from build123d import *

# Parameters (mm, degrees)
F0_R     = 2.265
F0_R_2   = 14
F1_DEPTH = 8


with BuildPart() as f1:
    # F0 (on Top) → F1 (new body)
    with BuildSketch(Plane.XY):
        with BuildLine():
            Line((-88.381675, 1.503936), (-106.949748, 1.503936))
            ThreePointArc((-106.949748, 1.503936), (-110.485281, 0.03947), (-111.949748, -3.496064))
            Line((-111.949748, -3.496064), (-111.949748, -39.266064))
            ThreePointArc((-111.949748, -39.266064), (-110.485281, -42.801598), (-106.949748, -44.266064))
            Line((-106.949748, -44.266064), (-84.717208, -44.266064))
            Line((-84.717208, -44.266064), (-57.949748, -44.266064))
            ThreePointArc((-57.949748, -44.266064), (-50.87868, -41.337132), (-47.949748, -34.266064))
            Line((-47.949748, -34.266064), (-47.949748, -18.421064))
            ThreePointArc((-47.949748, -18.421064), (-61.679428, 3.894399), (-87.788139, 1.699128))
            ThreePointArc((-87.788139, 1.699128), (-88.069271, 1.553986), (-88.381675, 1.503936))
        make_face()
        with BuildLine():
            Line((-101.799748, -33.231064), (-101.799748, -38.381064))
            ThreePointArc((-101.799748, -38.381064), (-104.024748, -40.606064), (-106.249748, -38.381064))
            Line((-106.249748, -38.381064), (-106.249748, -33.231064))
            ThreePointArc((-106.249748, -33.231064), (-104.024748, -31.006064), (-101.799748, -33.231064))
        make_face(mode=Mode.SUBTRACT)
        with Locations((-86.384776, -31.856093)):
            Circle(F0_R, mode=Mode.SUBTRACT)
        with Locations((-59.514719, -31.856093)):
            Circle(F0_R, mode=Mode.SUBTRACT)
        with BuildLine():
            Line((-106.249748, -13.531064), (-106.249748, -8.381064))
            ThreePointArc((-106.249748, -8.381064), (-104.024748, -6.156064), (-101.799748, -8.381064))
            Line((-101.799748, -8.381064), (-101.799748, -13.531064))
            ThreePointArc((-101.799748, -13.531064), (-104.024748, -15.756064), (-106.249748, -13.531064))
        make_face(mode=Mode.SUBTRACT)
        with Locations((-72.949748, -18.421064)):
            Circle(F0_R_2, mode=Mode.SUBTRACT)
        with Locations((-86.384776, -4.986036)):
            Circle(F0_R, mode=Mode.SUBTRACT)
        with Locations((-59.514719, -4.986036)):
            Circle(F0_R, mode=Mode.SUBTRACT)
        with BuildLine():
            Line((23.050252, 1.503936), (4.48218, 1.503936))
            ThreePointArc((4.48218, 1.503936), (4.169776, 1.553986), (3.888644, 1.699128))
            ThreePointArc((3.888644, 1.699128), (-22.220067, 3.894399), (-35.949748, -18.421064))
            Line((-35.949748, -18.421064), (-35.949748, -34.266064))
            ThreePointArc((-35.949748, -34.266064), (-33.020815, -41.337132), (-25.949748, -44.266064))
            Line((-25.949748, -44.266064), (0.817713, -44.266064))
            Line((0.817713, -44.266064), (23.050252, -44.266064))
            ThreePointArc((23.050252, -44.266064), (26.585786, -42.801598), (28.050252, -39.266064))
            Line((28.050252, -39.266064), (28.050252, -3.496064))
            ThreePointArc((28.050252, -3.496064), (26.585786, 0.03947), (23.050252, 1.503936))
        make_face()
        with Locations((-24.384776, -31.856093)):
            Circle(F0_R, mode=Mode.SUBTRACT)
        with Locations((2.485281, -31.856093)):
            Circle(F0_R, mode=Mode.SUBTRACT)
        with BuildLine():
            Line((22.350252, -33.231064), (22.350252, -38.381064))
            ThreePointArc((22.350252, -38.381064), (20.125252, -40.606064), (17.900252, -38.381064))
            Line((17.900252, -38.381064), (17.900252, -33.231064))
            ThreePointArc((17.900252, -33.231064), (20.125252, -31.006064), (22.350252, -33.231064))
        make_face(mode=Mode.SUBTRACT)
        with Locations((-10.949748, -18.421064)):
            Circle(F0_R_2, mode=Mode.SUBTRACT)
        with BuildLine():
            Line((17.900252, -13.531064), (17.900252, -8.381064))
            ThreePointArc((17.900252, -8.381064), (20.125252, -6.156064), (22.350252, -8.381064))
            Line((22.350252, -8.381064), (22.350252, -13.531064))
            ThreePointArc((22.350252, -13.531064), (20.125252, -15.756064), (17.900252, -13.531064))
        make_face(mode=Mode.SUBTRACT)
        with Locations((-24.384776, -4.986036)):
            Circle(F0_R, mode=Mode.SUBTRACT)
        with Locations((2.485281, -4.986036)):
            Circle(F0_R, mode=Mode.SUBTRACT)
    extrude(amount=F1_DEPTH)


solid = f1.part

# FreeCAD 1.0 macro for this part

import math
import FreeCAD as App
import Part
import Sketcher
Q = App.Units.Quantity

doc = App.newDocument("Part")
body = doc.addObject("PartDesign::Body", "Body")
body.AllowCompound = True

# Sketch on XY plane
sketch1 = body.newObject("Sketcher::SketchObject", "Sketch")
sketch1.AttachmentSupport = (doc.getObject("XY_Plane"), [""])
sketch1.MapMode = "FlatFace"
sketch1.addGeometry([
    Part.LineSegment(App.Vector(-88.381675, 1.503936, 0), App.Vector(-106.949748, 1.503936, 0)),  # 0
    Part.ArcOfCircle(Part.Circle(App.Vector(-106.949747, -3.496065, 0), App.Vector(0, 0, 1), 5.000001), math.radians(90.000016), math.radians(179.999984)),  # 1
    Part.LineSegment(App.Vector(-111.949748, -3.496064, 0), App.Vector(-111.949748, -39.266064, 0)),  # 2
    Part.ArcOfCircle(Part.Circle(App.Vector(-106.949747, -39.266063, 0), App.Vector(0, 0, 1), 5.000001), math.radians(-179.999984), math.radians(-90.000016)),  # 3
    Part.LineSegment(App.Vector(-106.949748, -44.266064, 0), App.Vector(-57.949748, -44.266064, 0)),  # 4
    Part.ArcOfCircle(Part.Circle(App.Vector(-57.949747, -34.266065, 0), App.Vector(0, 0, 1), 9.999999), math.radians(-90.000004), math.radians(0.000004)),  # 5
    Part.LineSegment(App.Vector(-47.949748, -34.266064, 0), App.Vector(-47.949748, -18.421064, 0)),  # 6
    Part.ArcOfCircle(Part.Circle(App.Vector(-72.949747, -18.421064, 0), App.Vector(0, 0, 1), 24.999999), math.radians(-0.000001), math.radians(126.408314)),  # 7
    Part.ArcOfCircle(Part.Circle(App.Vector(-88.381672, 2.503929, 0), App.Vector(0, 0, 1), 0.999993), math.radians(-90.000184), math.radians(-53.591576)),  # 8
    Part.ArcOfCircle(Part.Circle(App.Vector(-104.024748, -33.231064, 0), App.Vector(0, 0, 1), 2.225), math.radians(0), math.radians(180)),  # 9
    Part.LineSegment(App.Vector(-101.799748, -33.231064, 0), App.Vector(-101.799748, -38.381064, 0)),  # 10
    Part.ArcOfCircle(Part.Circle(App.Vector(-104.024748, -38.381064, 0), App.Vector(0, 0, 1), 2.225), math.radians(180), math.radians(360)),  # 11
    Part.LineSegment(App.Vector(-106.249748, -38.381064, 0), App.Vector(-106.249748, -33.231064, 0)),  # 12
    Part.Circle(App.Vector(-86.384776, -31.856093, 0), App.Vector(0, 0, 1), 2.265),  # 13
    Part.Circle(App.Vector(-59.514719, -31.856093, 0), App.Vector(0, 0, 1), 2.265),  # 14
    Part.ArcOfCircle(Part.Circle(App.Vector(-104.024748, -13.531064, 0), App.Vector(0, 0, 1), 2.225), math.radians(180), math.radians(360)),  # 15
    Part.LineSegment(App.Vector(-106.249748, -13.531064, 0), App.Vector(-106.249748, -8.381064, 0)),  # 16
    Part.ArcOfCircle(Part.Circle(App.Vector(-104.024748, -8.381064, 0), App.Vector(0, 0, 1), 2.225), math.radians(0), math.radians(180)),  # 17
    Part.LineSegment(App.Vector(-101.799748, -8.381064, 0), App.Vector(-101.799748, -13.531064, 0)),  # 18
    Part.Circle(App.Vector(-86.384776, -4.986036, 0), App.Vector(0, 0, 1), 2.265),  # 19
    Part.Circle(App.Vector(-72.949748, -18.421064, 0), App.Vector(0, 0, 1), 14),  # 20
    Part.Circle(App.Vector(-59.514719, -4.986036, 0), App.Vector(0, 0, 1), 2.265),  # 21
    Part.LineSegment(App.Vector(23.050252, 1.503936, 0), App.Vector(4.48218, 1.503936, 0)),  # 22
    Part.ArcOfCircle(Part.Circle(App.Vector(4.482177, 2.503929, 0), App.Vector(0, 0, 1), 0.999993), math.radians(-126.408424), math.radians(-89.999816)),  # 23
    Part.ArcOfCircle(Part.Circle(App.Vector(-10.949748, -18.421065, 0), App.Vector(0, 0, 1), 25), math.radians(53.591688), math.radians(179.999998)),  # 24
    Part.LineSegment(App.Vector(-35.949748, -18.421064, 0), App.Vector(-35.949748, -34.266064, 0)),  # 25
    Part.ArcOfCircle(Part.Circle(App.Vector(-25.949747, -34.266063, 0), App.Vector(0, 0, 1), 10.000001), math.radians(-179.999994), math.radians(-90.000006)),  # 26
    Part.LineSegment(App.Vector(-25.949748, -44.266064, 0), App.Vector(23.050252, -44.266064, 0)),  # 27
    Part.ArcOfCircle(Part.Circle(App.Vector(23.050252, -39.266064, 0), App.Vector(0, 0, 1), 5), math.radians(-90.000004), math.radians(0.000004)),  # 28
    Part.LineSegment(App.Vector(28.050252, -39.266064, 0), App.Vector(28.050252, -3.496064, 0)),  # 29
    Part.ArcOfCircle(Part.Circle(App.Vector(23.050252, -3.496064, 0), App.Vector(0, 0, 1), 5), math.radians(-0.000004), math.radians(90.000004)),  # 30
    Part.Circle(App.Vector(-24.384776, -31.856093, 0), App.Vector(0, 0, 1), 2.265),  # 31
    Part.Circle(App.Vector(2.485281, -31.856093, 0), App.Vector(0, 0, 1), 2.265),  # 32
    Part.ArcOfCircle(Part.Circle(App.Vector(20.125252, -33.231064, 0), App.Vector(0, 0, 1), 2.225), math.radians(0), math.radians(180)),  # 33
    Part.LineSegment(App.Vector(22.350252, -33.231064, 0), App.Vector(22.350252, -38.381064, 0)),  # 34
    Part.ArcOfCircle(Part.Circle(App.Vector(20.125252, -38.381064, 0), App.Vector(0, 0, 1), 2.225), math.radians(180), math.radians(360)),  # 35
    Part.LineSegment(App.Vector(17.900252, -38.381064, 0), App.Vector(17.900252, -33.231064, 0)),  # 36
    Part.Circle(App.Vector(-10.949748, -18.421064, 0), App.Vector(0, 0, 1), 14),  # 37
    Part.Circle(App.Vector(-24.384776, -4.986036, 0), App.Vector(0, 0, 1), 2.265),  # 38
    Part.Circle(App.Vector(2.485281, -4.986036, 0), App.Vector(0, 0, 1), 2.265),  # 39
    Part.ArcOfCircle(Part.Circle(App.Vector(20.125252, -13.531064, 0), App.Vector(0, 0, 1), 2.225), math.radians(180), math.radians(360)),  # 40
    Part.LineSegment(App.Vector(17.900252, -13.531064, 0), App.Vector(17.900252, -8.381064, 0)),  # 41
    Part.ArcOfCircle(Part.Circle(App.Vector(20.125252, -8.381064, 0), App.Vector(0, 0, 1), 2.225), math.radians(0), math.radians(180)),  # 42
    Part.LineSegment(App.Vector(22.350252, -8.381064, 0), App.Vector(22.350252, -13.531064, 0)),  # 43
], False)
sketch1.addConstraint([
    Sketcher.Constraint("Tangent", 0, 2, 1, 1),
    Sketcher.Constraint("Tangent", 1, 2, 2, 1),
    Sketcher.Constraint("Tangent", 2, 2, 3, 1),
    Sketcher.Constraint("Tangent", 3, 2, 4, 1),
    Sketcher.Constraint("Tangent", 4, 2, 5, 1),
    Sketcher.Constraint("Tangent", 5, 2, 6, 1),
    Sketcher.Constraint("Tangent", 6, 2, 7, 1),
    Sketcher.Constraint("Tangent", 7, 2, 8, 2),
    Sketcher.Constraint("Coincident", 8, 1, 0, 1),
    Sketcher.Constraint("Tangent", 9, 1, 10, 1),
    Sketcher.Constraint("Tangent", 10, 2, 11, 2),
    Sketcher.Constraint("Tangent", 11, 1, 12, 1),
    Sketcher.Constraint("Tangent", 12, 2, 9, 2),
    Sketcher.Constraint("Tangent", 15, 1, 16, 1),
    Sketcher.Constraint("Tangent", 16, 2, 17, 2),
    Sketcher.Constraint("Tangent", 17, 1, 18, 1),
    Sketcher.Constraint("Tangent", 18, 2, 15, 2),
    Sketcher.Constraint("Coincident", 22, 2, 23, 2),
    Sketcher.Constraint("Tangent", 23, 1, 24, 1),
    Sketcher.Constraint("Tangent", 24, 2, 25, 1),
    Sketcher.Constraint("Tangent", 25, 2, 26, 1),
    Sketcher.Constraint("Tangent", 26, 2, 27, 1),
    Sketcher.Constraint("Tangent", 27, 2, 28, 1),
    Sketcher.Constraint("Tangent", 28, 2, 29, 1),
    Sketcher.Constraint("Tangent", 29, 2, 30, 1),
    Sketcher.Constraint("Tangent", 30, 2, 22, 1),
    Sketcher.Constraint("Tangent", 33, 1, 34, 1),
    Sketcher.Constraint("Tangent", 34, 2, 35, 2),
    Sketcher.Constraint("Tangent", 35, 1, 36, 1),
    Sketcher.Constraint("Tangent", 36, 2, 33, 2),
    Sketcher.Constraint("Tangent", 40, 1, 41, 1),
    Sketcher.Constraint("Tangent", 41, 2, 42, 2),
    Sketcher.Constraint("Tangent", 42, 1, 43, 1),
    Sketcher.Constraint("Tangent", 43, 2, 40, 2),
    Sketcher.Constraint("Horizontal", 0),
    Sketcher.Constraint("Vertical", 2),
    Sketcher.Constraint("Horizontal", 4),
    Sketcher.Constraint("Vertical", 6),
    Sketcher.Constraint("Vertical", 10),
    Sketcher.Constraint("Vertical", 12),
    Sketcher.Constraint("Vertical", 16),
    Sketcher.Constraint("Vertical", 18),
    Sketcher.Constraint("Horizontal", 22),
    Sketcher.Constraint("Vertical", 25),
    Sketcher.Constraint("Horizontal", 27),
    Sketcher.Constraint("Vertical", 29),
    Sketcher.Constraint("Vertical", 34),
    Sketcher.Constraint("Vertical", 36),
    Sketcher.Constraint("Vertical", 41),
    Sketcher.Constraint("Vertical", 43),
    Sketcher.Constraint("Coincident", 20, 3, 7, 3),
    Sketcher.Constraint("Coincident", 37, 3, 24, 3),
    Sketcher.Constraint("Equal", 1, 3),
    Sketcher.Constraint("Equal", 13, 14),
    Sketcher.Constraint("Equal", 11, 15),
    Sketcher.Constraint("Equal", 14, 19),
    Sketcher.Constraint("Equal", 19, 21),
    Sketcher.Constraint("Equal", 8, 23),
    Sketcher.Constraint("Equal", 7, 24),
    Sketcher.Constraint("Equal", 5, 26),
    Sketcher.Constraint("Equal", 3, 28),
    Sketcher.Constraint("Equal", 28, 30),
    Sketcher.Constraint("Equal", 21, 31),
    Sketcher.Constraint("Equal", 31, 32),
    Sketcher.Constraint("Equal", 17, 33),
    Sketcher.Constraint("Equal", 20, 37),
    Sketcher.Constraint("Equal", 32, 38),
    Sketcher.Constraint("Equal", 38, 39),
    Sketcher.Constraint("Equal", 35, 40),
    Sketcher.Constraint("Horizontal", 13, 3, 14, 3),
    Sketcher.Constraint("Horizontal", 19, 3, 21, 3),
    Sketcher.Constraint("Horizontal", 8, 3, 23, 3),
    Sketcher.Constraint("Horizontal", 20, 3, 24, 3),
    Sketcher.Constraint("Horizontal", 5, 3, 26, 3),
    Sketcher.Constraint("Horizontal", 14, 3, 31, 3),
    Sketcher.Constraint("Horizontal", 31, 3, 32, 3),
    Sketcher.Constraint("Horizontal", 9, 3, 33, 3),
    Sketcher.Constraint("Horizontal", 11, 3, 35, 3),
    Sketcher.Constraint("Horizontal", 21, 3, 38, 3),
    Sketcher.Constraint("Horizontal", 38, 3, 39, 3),
    Sketcher.Constraint("Horizontal", 15, 3, 40, 3),
    Sketcher.Constraint("Horizontal", 17, 3, 42, 3),
    Sketcher.Constraint("Vertical", 11, 3, 15, 3),
    Sketcher.Constraint("Vertical", 13, 3, 19, 3),
    Sketcher.Constraint("Vertical", 14, 3, 21, 3),
    Sketcher.Constraint("Vertical", 31, 3, 38, 3),
    Sketcher.Constraint("Vertical", 32, 3, 39, 3),
    Sketcher.Constraint("Vertical", 35, 3, 40, 3),
    Sketcher.Constraint("Equal", 0, 22),
    Sketcher.Constraint("Equal", 4, 27),
    Sketcher.Constraint("Equal", 12, 16),
    Sketcher.Constraint("Diameter", 20, Q("28 mm")),
    Sketcher.Constraint("Radius", 1, Q("5.000001 mm")),
    Sketcher.Constraint("Radius", 5, Q("9.999999 mm")),
    Sketcher.Constraint("Radius", 7, Q("24.999999 mm")),
    Sketcher.Constraint("Diameter", 13, Q("4.53 mm")),
    Sketcher.Constraint("DistanceX", 4, 1, 4, 2, Q("49 mm")),
    Sketcher.Constraint("Radius", 9, Q("2.225 mm")),
    Sketcher.Constraint("DistanceY", 2, 2, 2, 1, Q("35.77 mm")),
    Sketcher.Constraint("DistanceY", 10, 2, 10, 1, Q("5.15 mm")),
    Sketcher.Constraint("DistanceY", 6, 1, 6, 2, Q("15.845 mm")),
    Sketcher.Constraint("Radius", 8, Q("0.999993 mm")),
    Sketcher.Constraint("DistanceX", 0, 2, 0, 1, Q("18.568073 mm")),
    Sketcher.Constraint("DistanceX", 8, 3, -1, 1, Q("88.381672 mm")),
    Sketcher.Constraint("DistanceY", -1, 1, 8, 3, Q("2.503929 mm")),
    Sketcher.Constraint("DistanceX", 9, 3, -1, 1, Q("104.024748 mm")),
    Sketcher.Constraint("DistanceX", 14, 3, -1, 1, Q("59.514719 mm")),
    Sketcher.Constraint("DistanceX", -1, 1, 32, 3, Q("2.485281 mm")),
    Sketcher.Constraint("DistanceX", -1, 1, 33, 3, Q("20.125252 mm")),
    Sketcher.Constraint("DistanceX", -1, 1, 22, 2, Q("4.48218 mm")),
    Sketcher.Constraint("DistanceY", 9, 3, -1, 1, Q("33.231064 mm")),
    Sketcher.Constraint("DistanceX", 13, 3, -1, 1, Q("86.384776 mm")),
    Sketcher.Constraint("DistanceY", 13, 3, -1, 1, Q("31.856093 mm")),
    Sketcher.Constraint("DistanceY", 15, 3, -1, 1, Q("13.531064 mm")),
    Sketcher.Constraint("DistanceY", 19, 3, -1, 1, Q("4.986036 mm")),
    Sketcher.Constraint("DistanceX", 31, 3, -1, 1, Q("24.384776 mm")),
])
pad1 = body.newObject("PartDesign::Pad", "Pad")
pad1.Profile = sketch1
pad1.Length = 8

doc.recompute()
